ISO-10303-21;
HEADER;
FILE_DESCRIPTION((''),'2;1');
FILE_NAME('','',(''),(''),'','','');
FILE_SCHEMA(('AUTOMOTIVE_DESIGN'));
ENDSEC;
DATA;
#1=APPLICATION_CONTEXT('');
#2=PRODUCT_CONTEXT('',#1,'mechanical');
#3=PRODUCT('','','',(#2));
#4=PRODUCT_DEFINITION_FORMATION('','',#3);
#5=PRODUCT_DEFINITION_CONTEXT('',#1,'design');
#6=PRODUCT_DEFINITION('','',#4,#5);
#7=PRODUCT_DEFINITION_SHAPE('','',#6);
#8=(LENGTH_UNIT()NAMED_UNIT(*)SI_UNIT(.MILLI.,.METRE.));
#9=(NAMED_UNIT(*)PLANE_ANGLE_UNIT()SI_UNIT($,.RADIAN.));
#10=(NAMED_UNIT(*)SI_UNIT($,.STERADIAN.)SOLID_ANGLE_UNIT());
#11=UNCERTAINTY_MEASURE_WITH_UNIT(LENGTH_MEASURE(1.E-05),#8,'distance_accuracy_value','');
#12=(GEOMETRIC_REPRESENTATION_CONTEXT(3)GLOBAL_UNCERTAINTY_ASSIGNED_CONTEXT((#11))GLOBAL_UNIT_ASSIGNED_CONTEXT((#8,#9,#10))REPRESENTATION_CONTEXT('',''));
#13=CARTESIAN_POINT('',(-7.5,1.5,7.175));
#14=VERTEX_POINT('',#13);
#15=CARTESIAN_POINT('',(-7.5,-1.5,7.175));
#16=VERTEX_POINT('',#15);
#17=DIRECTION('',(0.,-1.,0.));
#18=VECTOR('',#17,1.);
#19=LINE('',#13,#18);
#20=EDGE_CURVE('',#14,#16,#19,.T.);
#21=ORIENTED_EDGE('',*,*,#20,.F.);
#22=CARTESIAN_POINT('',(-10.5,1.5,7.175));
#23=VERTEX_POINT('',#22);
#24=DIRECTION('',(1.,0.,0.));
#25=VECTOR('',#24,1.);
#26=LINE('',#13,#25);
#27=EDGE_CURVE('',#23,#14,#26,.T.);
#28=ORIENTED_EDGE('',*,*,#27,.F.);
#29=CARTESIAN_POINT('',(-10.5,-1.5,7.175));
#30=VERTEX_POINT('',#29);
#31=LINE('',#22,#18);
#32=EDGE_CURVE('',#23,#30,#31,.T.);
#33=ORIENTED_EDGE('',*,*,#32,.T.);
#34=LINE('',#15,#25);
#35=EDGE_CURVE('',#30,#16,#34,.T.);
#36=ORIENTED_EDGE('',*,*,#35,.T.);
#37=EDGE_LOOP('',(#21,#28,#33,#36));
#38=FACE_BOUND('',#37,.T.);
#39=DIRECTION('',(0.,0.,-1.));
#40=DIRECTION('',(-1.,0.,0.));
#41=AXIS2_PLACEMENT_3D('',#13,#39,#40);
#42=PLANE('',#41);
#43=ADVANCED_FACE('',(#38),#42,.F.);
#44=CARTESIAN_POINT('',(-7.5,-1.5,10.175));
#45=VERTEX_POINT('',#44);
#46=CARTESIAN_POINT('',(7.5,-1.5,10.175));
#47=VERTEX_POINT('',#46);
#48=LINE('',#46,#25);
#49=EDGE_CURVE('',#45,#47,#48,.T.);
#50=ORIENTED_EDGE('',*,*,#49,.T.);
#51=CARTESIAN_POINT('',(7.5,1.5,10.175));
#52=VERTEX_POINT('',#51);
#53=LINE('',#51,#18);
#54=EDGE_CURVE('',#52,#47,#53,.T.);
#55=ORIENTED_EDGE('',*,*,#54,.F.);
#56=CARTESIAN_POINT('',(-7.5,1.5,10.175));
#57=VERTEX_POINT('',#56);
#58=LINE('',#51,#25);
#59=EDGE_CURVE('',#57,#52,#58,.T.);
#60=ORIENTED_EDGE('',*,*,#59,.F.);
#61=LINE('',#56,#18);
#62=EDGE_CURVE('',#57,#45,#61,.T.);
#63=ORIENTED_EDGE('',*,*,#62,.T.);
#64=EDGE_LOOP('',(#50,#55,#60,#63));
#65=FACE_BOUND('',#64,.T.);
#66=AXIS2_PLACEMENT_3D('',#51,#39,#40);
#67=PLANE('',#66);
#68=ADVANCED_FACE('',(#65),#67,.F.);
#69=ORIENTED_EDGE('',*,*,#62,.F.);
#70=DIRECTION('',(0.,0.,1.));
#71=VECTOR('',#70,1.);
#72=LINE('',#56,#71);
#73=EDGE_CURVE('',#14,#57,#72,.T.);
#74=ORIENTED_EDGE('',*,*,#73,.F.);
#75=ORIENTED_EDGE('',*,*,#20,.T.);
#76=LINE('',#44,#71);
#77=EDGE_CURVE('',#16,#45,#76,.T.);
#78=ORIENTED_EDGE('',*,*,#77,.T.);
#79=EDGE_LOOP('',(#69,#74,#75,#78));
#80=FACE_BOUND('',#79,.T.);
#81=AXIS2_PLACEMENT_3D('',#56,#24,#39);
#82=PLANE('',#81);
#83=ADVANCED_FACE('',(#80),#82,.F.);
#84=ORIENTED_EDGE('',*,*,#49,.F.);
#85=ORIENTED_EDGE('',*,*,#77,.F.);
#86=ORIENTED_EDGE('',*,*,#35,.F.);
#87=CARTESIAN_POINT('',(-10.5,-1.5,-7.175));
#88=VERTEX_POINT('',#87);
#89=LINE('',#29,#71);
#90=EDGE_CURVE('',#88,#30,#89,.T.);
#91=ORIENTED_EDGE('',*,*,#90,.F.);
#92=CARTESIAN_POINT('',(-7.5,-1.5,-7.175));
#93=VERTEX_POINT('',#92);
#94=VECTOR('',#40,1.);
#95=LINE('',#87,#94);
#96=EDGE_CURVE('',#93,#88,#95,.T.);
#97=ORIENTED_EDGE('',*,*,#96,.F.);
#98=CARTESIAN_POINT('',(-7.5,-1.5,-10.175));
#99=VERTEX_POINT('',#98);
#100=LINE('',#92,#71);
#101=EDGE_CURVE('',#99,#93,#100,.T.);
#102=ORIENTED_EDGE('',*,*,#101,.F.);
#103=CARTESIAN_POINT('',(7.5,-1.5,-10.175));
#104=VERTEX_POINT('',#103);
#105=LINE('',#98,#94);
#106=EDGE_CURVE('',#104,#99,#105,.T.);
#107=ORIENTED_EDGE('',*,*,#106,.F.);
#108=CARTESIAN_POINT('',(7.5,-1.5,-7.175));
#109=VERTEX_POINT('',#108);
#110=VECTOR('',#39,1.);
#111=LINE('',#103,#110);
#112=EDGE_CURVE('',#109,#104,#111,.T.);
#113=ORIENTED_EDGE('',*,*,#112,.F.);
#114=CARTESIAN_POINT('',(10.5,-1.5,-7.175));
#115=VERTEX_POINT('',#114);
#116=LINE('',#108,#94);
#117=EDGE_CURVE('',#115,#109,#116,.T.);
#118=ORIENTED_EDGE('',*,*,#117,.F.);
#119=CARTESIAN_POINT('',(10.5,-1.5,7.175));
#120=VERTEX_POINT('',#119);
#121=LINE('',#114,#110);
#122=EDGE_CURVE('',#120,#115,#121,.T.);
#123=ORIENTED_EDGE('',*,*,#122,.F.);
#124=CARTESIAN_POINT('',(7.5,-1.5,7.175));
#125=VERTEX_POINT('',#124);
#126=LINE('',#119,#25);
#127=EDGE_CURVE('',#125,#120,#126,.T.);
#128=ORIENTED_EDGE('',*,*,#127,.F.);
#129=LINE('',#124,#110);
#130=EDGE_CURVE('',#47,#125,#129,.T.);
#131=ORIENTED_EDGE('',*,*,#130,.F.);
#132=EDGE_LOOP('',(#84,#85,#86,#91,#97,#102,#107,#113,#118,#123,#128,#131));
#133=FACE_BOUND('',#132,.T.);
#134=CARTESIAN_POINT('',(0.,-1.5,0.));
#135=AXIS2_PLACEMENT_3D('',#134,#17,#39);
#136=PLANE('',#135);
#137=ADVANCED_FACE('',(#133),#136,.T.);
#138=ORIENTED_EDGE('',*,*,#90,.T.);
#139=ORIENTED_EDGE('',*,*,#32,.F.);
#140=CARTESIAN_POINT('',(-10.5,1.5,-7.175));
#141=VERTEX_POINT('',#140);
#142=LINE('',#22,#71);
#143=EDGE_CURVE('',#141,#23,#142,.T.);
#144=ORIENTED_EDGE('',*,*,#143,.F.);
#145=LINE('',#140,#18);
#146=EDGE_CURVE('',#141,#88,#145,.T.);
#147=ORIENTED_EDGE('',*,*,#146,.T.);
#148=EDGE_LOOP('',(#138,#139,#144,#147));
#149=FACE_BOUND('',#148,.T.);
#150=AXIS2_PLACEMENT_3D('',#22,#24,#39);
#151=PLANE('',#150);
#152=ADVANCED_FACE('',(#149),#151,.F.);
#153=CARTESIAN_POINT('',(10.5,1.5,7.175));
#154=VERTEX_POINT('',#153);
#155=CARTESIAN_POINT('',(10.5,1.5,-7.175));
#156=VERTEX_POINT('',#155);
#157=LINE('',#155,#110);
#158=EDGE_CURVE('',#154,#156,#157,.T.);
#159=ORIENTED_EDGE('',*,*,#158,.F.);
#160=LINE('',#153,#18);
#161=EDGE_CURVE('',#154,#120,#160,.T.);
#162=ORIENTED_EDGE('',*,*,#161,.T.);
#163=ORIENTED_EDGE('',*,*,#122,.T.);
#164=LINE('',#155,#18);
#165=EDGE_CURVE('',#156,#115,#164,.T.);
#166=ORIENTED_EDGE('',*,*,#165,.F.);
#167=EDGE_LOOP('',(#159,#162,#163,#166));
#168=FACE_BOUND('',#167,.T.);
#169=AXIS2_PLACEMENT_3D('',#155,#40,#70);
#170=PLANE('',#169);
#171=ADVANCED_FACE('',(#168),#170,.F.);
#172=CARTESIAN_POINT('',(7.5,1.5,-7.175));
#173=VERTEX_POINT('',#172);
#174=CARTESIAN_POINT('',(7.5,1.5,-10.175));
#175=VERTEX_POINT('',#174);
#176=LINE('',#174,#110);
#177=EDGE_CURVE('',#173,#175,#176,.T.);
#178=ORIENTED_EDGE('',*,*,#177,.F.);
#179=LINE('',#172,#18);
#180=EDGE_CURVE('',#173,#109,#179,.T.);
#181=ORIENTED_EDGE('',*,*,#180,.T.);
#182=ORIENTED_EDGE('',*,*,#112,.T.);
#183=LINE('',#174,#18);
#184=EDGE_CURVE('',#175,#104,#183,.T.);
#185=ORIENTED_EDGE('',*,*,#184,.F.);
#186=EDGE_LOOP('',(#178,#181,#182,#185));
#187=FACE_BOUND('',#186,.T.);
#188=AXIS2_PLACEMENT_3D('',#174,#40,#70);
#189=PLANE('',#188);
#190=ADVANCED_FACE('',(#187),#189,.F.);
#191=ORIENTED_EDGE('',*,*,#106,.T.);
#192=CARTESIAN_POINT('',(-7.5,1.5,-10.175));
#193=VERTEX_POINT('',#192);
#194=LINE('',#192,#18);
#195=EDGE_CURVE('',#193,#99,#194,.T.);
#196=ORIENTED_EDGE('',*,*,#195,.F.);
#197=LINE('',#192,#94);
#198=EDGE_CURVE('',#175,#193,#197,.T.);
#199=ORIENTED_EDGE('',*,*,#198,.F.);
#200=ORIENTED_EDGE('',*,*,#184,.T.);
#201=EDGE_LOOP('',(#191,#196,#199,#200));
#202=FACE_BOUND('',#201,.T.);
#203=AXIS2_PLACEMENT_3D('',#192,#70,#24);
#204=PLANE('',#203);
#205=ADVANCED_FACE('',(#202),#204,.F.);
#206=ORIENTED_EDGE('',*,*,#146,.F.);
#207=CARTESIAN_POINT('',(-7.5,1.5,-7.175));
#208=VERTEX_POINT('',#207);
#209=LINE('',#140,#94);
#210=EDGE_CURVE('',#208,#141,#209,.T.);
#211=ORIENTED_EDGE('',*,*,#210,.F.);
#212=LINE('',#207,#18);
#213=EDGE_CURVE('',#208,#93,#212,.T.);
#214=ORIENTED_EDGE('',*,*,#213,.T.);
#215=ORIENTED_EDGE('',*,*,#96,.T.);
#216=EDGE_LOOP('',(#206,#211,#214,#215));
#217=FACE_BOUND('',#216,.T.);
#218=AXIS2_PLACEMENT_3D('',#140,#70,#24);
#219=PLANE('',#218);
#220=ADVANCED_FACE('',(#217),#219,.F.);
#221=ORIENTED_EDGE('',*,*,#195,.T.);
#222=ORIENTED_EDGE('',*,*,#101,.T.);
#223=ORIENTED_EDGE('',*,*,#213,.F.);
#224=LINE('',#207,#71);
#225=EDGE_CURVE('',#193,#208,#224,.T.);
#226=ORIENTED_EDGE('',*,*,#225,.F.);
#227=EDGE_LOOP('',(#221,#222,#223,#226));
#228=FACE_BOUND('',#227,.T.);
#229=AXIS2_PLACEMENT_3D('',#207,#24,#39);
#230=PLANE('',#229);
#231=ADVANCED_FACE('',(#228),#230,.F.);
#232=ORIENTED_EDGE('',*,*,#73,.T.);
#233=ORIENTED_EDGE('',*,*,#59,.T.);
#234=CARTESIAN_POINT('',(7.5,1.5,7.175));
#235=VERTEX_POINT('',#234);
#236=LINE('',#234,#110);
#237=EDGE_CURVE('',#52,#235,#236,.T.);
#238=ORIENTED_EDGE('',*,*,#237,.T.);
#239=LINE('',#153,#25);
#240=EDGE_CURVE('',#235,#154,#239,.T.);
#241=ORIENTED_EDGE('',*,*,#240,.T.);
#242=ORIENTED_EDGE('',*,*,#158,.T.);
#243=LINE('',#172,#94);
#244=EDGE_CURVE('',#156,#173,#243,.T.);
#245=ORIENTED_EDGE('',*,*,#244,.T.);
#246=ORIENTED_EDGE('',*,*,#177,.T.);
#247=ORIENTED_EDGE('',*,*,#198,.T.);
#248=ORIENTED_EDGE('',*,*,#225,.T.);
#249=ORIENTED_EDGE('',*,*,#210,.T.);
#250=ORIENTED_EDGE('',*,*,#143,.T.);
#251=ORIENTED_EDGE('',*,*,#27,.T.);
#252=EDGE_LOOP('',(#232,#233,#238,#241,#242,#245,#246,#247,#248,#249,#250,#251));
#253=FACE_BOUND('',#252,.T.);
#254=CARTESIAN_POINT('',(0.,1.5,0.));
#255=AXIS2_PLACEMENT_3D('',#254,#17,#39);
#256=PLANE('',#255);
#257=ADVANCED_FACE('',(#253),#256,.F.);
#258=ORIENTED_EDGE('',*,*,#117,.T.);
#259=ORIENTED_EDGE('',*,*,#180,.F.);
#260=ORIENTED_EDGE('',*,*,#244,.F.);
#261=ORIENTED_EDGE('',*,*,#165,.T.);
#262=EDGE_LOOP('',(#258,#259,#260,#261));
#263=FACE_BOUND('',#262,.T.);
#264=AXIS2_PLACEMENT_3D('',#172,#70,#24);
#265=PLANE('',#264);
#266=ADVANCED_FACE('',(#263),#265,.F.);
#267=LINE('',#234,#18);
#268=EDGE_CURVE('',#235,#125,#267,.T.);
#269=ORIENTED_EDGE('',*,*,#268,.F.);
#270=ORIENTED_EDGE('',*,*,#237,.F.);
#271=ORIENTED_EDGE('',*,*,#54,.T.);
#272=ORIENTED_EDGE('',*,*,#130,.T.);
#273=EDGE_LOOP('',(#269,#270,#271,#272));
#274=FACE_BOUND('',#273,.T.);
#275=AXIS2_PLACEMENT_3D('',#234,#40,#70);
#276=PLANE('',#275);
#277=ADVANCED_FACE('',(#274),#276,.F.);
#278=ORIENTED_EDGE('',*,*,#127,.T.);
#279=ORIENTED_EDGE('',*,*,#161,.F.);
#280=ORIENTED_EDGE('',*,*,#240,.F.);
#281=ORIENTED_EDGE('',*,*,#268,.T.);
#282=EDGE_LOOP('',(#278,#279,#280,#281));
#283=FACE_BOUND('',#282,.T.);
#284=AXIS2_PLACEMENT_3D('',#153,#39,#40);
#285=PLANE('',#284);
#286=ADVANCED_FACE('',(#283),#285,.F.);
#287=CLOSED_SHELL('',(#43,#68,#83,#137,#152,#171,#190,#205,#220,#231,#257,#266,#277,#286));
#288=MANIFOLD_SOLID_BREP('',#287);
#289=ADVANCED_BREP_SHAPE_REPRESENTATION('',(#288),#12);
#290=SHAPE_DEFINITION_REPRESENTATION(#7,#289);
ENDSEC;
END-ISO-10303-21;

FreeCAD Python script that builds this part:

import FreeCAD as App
import Part
import Sketcher
from FreeCAD import Vector


def add_polygon(sketch, points):
    """Adds a closed chain of lines whose ends are joined by coincident constraints."""
    first, n = sketch.GeometryCount, len(points)
    for a, b in zip(points, points[1:] + points[:1]):
        sketch.addGeometry(Part.LineSegment(App.Vector(*a, 0), App.Vector(*b, 0)), False)
    for i in range(n):
        sketch.addConstraint(Sketcher.Constraint("Coincident", first + i, 2, first + (i + 1) % n, 1))

doc = App.newDocument("Part")
body = doc.addObject("PartDesign::Body", "Body")

sketch1 = doc.addObject("Sketcher::SketchObject", "Sketch")
body.addObject(sketch1)
sketch1.AttachmentSupport = (doc.XZ_Plane, [""])
sketch1.MapMode = "FlatFace"
add_polygon(sketch1, [(7.5, -10.175), (-7.5, -10.175), (-7.5, -7.175), (-10.5, -7.175), (-10.5, 7.175), (-7.5, 7.175), (-7.5, 10.175), (7.5, 10.175), (7.5, 7.175), (10.5, 7.175), (10.5, -7.175), (7.5, -7.175)])
sketch1.addConstraint(Sketcher.Constraint("Horizontal", 0))
sketch1.addConstraint(Sketcher.Constraint("Vertical", 1))
sketch1.addConstraint(Sketcher.Constraint("Horizontal", 2))
sketch1.addConstraint(Sketcher.Constraint("Vertical", 3))
sketch1.addConstraint(Sketcher.Constraint("Horizontal", 4))
sketch1.addConstraint(Sketcher.Constraint("Vertical", 5))
sketch1.addConstraint(Sketcher.Constraint("Horizontal", 6))
sketch1.addConstraint(Sketcher.Constraint("Vertical", 7))
sketch1.addConstraint(Sketcher.Constraint("Horizontal", 8))
sketch1.addConstraint(Sketcher.Constraint("Vertical", 9))
sketch1.addConstraint(Sketcher.Constraint("Horizontal", 10))
sketch1.addConstraint(Sketcher.Constraint("Vertical", 11))
sketch1.addConstraint(Sketcher.Constraint("Symmetric", 0, 2, 6, 2, -1, 1))
sketch1.addConstraint(Sketcher.Constraint("Symmetric", 2, 2, 8, 2, -1, 1))
sketch1.addConstraint(Sketcher.Constraint("Symmetric", 4, 2, 10, 2, -1, 1))
sketch1.addConstraint(Sketcher.Constraint("Symmetric", 4, 2, 7, 2, -2))
sketch1.addConstraint(Sketcher.Constraint("Equal", 10, 1))
sketch1.addConstraint(Sketcher.Constraint("DistanceX", 0, 2, 0, 1, 15.0))
sketch1.addConstraint(Sketcher.Constraint("DistanceX", 2, 2, 2, 1, 3.0))
sketch1.addConstraint(Sketcher.Constraint("DistanceY", 3, 1, 3, 2, 14.35))
pad1 = doc.addObject("PartDesign::Pad", "Pad")
body.addObject(pad1)
pad1.Profile = sketch1
pad1.Length = 3
pad1.Midplane = True

doc.recompute()
